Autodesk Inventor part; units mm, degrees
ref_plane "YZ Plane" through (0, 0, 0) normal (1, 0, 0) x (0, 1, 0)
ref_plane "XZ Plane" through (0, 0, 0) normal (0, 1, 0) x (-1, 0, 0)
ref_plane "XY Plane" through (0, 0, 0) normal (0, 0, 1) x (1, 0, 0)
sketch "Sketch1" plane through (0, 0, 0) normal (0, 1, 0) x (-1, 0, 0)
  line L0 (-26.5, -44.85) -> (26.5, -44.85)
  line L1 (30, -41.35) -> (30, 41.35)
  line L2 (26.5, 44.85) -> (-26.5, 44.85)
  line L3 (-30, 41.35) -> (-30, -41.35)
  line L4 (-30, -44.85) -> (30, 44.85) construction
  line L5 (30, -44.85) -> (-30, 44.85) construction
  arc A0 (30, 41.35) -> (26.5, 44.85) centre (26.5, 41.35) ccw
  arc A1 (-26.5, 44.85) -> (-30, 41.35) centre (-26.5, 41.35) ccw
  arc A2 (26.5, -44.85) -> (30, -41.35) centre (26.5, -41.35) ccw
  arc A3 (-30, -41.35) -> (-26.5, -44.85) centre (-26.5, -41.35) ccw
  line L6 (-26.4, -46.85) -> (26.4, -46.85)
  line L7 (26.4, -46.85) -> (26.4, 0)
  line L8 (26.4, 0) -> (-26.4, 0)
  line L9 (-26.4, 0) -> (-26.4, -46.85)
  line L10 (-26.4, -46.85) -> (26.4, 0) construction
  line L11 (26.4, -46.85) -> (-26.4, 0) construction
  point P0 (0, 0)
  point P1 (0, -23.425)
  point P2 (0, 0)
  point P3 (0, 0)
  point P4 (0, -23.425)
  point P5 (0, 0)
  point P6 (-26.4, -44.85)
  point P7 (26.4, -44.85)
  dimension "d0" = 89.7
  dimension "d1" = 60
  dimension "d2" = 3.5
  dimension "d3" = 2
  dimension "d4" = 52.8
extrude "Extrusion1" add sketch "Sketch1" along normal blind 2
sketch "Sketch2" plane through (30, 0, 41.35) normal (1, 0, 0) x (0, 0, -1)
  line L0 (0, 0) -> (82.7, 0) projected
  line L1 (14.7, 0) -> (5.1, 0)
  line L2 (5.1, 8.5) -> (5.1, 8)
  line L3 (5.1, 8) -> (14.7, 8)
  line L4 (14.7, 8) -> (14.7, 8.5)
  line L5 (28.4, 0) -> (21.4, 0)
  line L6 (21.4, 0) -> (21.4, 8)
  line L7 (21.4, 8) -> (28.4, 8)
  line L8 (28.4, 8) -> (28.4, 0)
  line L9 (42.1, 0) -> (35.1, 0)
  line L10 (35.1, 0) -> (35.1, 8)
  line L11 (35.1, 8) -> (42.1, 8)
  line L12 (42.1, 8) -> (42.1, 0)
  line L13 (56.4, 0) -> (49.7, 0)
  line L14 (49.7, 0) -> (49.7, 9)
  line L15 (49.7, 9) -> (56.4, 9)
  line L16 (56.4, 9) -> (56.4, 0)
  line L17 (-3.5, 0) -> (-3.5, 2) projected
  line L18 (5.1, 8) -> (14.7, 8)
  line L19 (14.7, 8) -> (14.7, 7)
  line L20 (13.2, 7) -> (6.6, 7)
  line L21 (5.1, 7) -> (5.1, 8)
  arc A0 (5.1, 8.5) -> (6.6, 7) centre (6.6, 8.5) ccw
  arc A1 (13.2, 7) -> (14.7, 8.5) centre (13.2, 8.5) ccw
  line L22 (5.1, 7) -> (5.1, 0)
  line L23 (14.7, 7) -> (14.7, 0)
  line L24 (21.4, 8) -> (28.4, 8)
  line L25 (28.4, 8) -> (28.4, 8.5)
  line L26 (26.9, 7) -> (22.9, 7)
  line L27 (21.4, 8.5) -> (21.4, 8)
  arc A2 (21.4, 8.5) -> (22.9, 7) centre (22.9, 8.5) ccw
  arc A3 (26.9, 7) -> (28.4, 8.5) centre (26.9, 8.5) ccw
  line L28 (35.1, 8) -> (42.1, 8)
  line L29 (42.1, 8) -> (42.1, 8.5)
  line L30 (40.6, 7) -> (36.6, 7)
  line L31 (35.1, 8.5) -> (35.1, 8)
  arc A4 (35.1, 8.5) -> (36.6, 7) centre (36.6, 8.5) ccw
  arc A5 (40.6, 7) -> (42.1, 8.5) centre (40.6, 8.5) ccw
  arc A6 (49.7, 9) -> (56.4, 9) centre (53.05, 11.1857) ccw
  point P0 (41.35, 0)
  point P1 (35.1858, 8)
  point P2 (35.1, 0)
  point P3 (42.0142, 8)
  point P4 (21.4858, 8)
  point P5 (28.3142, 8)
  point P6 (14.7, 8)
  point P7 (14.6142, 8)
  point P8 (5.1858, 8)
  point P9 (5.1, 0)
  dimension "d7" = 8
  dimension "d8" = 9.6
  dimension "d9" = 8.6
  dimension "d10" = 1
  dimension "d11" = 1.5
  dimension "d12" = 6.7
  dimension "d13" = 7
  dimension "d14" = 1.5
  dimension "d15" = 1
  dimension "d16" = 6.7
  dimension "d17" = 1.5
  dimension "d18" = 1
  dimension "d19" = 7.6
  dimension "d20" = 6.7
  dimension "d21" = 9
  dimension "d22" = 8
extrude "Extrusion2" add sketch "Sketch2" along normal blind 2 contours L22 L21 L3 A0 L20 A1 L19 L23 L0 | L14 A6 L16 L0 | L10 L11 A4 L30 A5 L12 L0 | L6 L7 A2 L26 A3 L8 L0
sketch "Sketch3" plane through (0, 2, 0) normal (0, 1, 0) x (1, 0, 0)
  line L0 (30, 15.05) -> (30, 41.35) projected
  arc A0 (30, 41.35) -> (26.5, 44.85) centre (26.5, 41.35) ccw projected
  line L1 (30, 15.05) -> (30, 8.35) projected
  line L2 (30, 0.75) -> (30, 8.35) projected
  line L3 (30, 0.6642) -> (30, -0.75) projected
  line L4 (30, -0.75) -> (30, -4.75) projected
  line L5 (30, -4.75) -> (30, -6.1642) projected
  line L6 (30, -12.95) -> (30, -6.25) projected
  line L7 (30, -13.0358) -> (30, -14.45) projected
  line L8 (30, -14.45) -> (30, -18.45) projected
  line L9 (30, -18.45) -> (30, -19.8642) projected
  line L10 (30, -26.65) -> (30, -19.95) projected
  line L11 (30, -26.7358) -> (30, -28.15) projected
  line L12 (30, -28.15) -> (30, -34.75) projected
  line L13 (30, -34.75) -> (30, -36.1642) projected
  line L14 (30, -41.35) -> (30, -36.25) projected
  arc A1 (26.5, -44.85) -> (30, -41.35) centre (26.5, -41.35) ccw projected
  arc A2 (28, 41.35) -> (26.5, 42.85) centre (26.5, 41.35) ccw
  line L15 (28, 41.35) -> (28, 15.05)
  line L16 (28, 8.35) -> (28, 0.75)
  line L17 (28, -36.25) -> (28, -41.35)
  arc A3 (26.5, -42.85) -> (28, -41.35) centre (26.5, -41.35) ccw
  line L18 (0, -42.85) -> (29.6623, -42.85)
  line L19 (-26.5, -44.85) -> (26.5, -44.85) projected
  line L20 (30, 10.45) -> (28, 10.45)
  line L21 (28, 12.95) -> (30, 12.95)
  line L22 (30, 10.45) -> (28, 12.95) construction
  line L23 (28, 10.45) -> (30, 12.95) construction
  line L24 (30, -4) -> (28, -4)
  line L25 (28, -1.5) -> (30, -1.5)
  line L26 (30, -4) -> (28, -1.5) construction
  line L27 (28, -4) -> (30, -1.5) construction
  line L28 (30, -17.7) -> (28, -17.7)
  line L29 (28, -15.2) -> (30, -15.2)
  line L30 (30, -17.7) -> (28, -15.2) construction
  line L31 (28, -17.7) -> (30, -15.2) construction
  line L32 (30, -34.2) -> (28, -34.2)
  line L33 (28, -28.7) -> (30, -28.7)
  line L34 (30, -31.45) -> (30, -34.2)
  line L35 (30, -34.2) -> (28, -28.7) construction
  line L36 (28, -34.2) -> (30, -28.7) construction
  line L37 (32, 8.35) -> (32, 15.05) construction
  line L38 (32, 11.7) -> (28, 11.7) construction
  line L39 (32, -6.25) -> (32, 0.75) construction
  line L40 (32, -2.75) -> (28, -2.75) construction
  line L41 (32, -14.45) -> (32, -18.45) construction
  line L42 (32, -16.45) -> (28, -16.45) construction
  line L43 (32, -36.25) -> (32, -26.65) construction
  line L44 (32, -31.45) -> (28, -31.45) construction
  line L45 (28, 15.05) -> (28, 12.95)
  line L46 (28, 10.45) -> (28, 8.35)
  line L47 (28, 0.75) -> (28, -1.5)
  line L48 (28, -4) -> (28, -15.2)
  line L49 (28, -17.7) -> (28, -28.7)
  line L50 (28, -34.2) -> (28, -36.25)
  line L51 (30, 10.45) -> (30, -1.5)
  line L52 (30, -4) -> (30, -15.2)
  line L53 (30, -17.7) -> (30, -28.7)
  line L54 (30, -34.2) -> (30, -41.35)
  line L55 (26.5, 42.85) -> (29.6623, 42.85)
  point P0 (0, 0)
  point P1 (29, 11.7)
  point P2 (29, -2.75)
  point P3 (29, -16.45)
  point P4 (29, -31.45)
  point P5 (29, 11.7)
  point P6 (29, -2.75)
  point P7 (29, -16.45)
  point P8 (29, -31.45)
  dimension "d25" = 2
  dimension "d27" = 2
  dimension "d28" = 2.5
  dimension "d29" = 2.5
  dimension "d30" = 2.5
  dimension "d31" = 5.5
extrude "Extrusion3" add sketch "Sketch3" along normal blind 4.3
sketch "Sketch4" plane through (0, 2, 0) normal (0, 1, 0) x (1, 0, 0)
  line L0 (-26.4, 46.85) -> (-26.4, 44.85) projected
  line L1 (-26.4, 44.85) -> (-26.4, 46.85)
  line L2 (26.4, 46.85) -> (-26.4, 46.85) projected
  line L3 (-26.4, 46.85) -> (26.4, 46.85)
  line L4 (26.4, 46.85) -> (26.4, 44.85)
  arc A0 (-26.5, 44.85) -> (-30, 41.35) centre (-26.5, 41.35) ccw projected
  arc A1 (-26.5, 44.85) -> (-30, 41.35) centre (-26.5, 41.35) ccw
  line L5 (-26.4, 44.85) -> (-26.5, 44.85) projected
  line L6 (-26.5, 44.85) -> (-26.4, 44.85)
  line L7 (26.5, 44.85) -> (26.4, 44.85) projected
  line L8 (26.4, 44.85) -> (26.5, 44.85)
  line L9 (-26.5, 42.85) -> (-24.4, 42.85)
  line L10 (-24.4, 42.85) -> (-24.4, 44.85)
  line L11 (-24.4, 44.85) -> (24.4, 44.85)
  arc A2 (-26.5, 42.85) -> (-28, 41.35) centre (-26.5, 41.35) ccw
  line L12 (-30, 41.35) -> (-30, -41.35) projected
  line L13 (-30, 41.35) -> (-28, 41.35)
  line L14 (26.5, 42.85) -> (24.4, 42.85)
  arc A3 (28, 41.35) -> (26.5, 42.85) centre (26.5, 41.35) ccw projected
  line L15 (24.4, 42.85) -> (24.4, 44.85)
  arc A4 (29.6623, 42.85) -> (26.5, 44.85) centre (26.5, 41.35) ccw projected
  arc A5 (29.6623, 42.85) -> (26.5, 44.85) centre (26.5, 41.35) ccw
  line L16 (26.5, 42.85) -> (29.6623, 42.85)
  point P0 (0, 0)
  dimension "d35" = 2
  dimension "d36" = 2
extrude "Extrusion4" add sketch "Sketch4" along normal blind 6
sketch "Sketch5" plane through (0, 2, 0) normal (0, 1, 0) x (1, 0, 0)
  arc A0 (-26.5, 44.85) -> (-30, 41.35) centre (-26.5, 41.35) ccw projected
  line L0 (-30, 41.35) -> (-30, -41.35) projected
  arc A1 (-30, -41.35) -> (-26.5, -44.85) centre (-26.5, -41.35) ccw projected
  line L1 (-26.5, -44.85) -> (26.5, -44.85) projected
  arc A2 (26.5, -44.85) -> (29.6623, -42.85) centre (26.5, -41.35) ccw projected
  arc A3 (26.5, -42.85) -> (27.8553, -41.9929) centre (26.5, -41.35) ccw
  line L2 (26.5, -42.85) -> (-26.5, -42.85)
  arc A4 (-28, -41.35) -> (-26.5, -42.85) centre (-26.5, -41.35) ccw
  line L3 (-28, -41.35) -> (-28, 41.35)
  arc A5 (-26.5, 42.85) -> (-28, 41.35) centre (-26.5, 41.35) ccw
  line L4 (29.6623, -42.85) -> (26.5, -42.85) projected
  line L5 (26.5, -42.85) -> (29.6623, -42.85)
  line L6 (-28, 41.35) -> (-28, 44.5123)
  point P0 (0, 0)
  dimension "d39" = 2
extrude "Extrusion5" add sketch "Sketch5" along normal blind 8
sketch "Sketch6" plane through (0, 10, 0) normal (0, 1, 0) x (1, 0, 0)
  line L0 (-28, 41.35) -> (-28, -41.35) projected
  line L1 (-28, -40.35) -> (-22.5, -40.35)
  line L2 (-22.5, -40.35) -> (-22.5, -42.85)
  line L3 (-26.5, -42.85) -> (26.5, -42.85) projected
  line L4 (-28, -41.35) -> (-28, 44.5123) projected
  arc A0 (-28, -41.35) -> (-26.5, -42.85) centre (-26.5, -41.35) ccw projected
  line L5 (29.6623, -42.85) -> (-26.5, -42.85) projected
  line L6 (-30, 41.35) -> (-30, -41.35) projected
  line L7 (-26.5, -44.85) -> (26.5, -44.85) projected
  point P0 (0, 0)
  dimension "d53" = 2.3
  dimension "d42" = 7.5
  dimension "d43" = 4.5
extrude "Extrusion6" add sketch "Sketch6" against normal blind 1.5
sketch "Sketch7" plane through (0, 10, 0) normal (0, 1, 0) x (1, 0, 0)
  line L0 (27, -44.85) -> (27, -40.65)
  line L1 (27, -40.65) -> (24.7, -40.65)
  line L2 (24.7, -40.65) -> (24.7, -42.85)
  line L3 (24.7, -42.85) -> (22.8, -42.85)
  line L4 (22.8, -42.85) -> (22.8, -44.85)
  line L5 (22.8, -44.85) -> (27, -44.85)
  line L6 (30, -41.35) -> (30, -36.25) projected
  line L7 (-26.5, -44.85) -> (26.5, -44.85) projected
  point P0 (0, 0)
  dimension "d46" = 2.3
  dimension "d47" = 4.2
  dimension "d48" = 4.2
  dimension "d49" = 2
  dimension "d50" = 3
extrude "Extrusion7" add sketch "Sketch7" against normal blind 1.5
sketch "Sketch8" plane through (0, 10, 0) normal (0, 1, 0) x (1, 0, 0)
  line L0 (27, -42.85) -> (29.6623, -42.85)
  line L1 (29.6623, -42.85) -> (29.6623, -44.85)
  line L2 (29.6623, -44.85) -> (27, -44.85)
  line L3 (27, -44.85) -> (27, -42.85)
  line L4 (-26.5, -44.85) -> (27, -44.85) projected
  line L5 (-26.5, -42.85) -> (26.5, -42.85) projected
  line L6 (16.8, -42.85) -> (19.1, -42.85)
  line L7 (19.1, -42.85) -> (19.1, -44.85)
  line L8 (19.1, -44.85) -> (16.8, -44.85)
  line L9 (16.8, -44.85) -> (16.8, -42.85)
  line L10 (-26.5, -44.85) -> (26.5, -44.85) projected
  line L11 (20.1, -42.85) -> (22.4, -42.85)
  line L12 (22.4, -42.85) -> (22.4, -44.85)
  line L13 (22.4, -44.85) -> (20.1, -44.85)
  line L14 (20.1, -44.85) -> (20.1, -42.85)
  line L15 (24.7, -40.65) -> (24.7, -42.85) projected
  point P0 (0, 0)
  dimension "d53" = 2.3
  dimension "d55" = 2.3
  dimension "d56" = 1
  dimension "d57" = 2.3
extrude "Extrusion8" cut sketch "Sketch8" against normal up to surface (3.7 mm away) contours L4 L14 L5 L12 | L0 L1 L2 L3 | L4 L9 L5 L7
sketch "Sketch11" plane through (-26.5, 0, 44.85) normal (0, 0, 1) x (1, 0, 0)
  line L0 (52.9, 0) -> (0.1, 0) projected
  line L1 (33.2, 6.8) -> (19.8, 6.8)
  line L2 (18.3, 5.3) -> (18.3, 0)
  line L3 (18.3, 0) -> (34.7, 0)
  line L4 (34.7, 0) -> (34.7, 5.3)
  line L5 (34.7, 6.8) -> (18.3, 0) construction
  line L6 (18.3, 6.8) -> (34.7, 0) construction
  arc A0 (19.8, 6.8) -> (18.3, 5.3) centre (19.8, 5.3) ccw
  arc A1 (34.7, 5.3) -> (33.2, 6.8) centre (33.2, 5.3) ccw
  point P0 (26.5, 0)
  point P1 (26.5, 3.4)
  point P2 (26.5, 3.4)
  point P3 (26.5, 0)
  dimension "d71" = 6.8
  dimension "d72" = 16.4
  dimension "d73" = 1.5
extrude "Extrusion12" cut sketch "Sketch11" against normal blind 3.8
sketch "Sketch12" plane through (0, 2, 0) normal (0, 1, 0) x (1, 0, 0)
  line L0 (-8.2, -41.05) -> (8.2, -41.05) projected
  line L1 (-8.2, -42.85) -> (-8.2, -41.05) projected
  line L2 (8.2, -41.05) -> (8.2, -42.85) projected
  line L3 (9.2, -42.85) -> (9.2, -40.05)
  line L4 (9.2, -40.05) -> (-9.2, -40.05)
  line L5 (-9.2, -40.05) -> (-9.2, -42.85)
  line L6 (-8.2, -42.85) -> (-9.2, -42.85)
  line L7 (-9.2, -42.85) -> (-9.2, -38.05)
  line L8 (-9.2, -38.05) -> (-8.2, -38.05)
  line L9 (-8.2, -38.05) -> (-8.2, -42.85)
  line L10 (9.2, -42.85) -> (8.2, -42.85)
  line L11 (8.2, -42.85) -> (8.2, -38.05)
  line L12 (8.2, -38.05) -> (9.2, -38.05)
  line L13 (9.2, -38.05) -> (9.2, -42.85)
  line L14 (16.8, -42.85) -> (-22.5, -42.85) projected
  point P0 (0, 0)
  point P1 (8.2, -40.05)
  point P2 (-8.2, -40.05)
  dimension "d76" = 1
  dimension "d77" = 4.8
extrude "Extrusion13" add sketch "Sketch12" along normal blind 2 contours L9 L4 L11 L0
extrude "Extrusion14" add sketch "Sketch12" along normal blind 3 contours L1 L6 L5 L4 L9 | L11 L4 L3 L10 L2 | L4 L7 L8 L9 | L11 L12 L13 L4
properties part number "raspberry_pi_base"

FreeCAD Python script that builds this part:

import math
import FreeCAD as App
import Part
import Sketcher
Q = App.Units.Quantity


def add_polygon(sketch, points):
    """Adds a closed chain of lines whose ends are joined by coincident constraints."""
    first, n = sketch.GeometryCount, len(points)
    for a, b in zip(points, points[1:] + points[:1]):
        sketch.addGeometry(Part.LineSegment(App.Vector(*a, 0), App.Vector(*b, 0)), False)
    for i in range(n):
        sketch.addConstraint(Sketcher.Constraint("Coincident", first + i, 2, first + (i + 1) % n, 1))

doc = App.newDocument("Part")
body = doc.addObject("PartDesign::Body", "Body")

sketch1 = body.newObject("Sketcher::SketchObject", "Sketch")
sketch1.AttachmentSupport = (doc.getObject("XZ_Plane"), [""])
sketch1.MapMode = "FlatFace"
sketch1.addGeometry([
    Part.ArcOfCircle(Part.Circle(App.Vector(26.5, -41.35, 0), App.Vector(0, 0, 1), 3.5), math.radians(-90), math.radians(0)),
    Part.LineSegment(App.Vector(26.5, -44.85, 0), App.Vector(26.4, -44.85, 0)),
    Part.LineSegment(App.Vector(26.4, -44.85, 0), App.Vector(26.4, -46.85, 0)),
    Part.LineSegment(App.Vector(26.4, -46.85, 0), App.Vector(-26.4, -46.85, 0)),
    Part.LineSegment(App.Vector(-26.4, -46.85, 0), App.Vector(-26.4, -44.85, 0)),
    Part.LineSegment(App.Vector(-26.4, -44.85, 0), App.Vector(-26.5, -44.85, 0)),
    Part.ArcOfCircle(Part.Circle(App.Vector(-26.5, -41.35, 0), App.Vector(0, 0, 1), 3.5), math.radians(180), math.radians(270)),
    Part.LineSegment(App.Vector(-30, -41.35, 0), App.Vector(-30, 41.35, 0)),
    Part.ArcOfCircle(Part.Circle(App.Vector(-26.5, 41.35, 0), App.Vector(0, 0, 1), 3.5), math.radians(90), math.radians(180)),
    Part.LineSegment(App.Vector(-26.5, 44.85, 0), App.Vector(26.5, 44.85, 0)),
    Part.ArcOfCircle(Part.Circle(App.Vector(26.5, 41.35, 0), App.Vector(0, 0, 1), 3.5), math.radians(0), math.radians(90)),
    Part.LineSegment(App.Vector(30, 41.35, 0), App.Vector(30, -41.35, 0)),
], False)
sketch1.addConstraint([
    Sketcher.Constraint("Tangent", 0, 1, 1, 1),
    Sketcher.Constraint("Coincident", 1, 2, 2, 1),
    Sketcher.Constraint("Coincident", 2, 2, 3, 1),
    Sketcher.Constraint("Coincident", 3, 2, 4, 1),
    Sketcher.Constraint("Coincident", 4, 2, 5, 1),
    Sketcher.Constraint("Tangent", 5, 2, 6, 2),
    Sketcher.Constraint("Tangent", 6, 1, 7, 1),
    Sketcher.Constraint("Tangent", 7, 2, 8, 2),
    Sketcher.Constraint("Tangent", 8, 1, 9, 1),
    Sketcher.Constraint("Tangent", 9, 2, 10, 2),
    Sketcher.Constraint("Tangent", 10, 1, 11, 1),
    Sketcher.Constraint("Tangent", 11, 2, 0, 2),
    Sketcher.Constraint("Horizontal", 1),
    Sketcher.Constraint("Vertical", 2),
    Sketcher.Constraint("Horizontal", 3),
    Sketcher.Constraint("Vertical", 4),
    Sketcher.Constraint("Horizontal", 5),
    Sketcher.Constraint("Vertical", 7),
    Sketcher.Constraint("Horizontal", 9),
    Sketcher.Constraint("Vertical", 11),
    Sketcher.Constraint("Equal", 0, 6),
    Sketcher.Constraint("Equal", 6, 8),
    Sketcher.Constraint("Equal", 8, 10),
    Sketcher.Constraint("Symmetric", 0, 3, 8, 3, -1, 1),
    Sketcher.Constraint("Symmetric", 1, 2, 4, 2, -2),
    Sketcher.Constraint("Radius", 0, Q("3.5 mm")),
    Sketcher.Constraint("DistanceY", 2, 2, 2, 1, Q("2 mm")),
    Sketcher.Constraint("DistanceX", 3, 2, 3, 1, Q("52.8 mm")),
    Sketcher.Constraint("DistanceX", 7, 2, 10, 1, Q("60 mm")),
    Sketcher.Constraint("DistanceY", 7, 1, 7, 2, Q("82.7 mm")),
])
pad1 = body.newObject("PartDesign::Pad", "Pad")
pad1.Profile = sketch1
pad1.Length = 2
pad1.Reversed = True

sketch2 = body.newObject("Sketcher::SketchObject", "Sketch001")
sketch2.AttachmentSupport = (doc.getObject("YZ_Plane"), [""])
sketch2.MapMode = "FlatFace"
sketch2.AttachmentOffset = App.Placement(App.Vector(0, 0, 30), App.Rotation())
sketch2.addGeometry([
    Part.LineSegment(App.Vector(8, 36.25, 0), App.Vector(0, 36.25, 0)),
    Part.LineSegment(App.Vector(0, 36.25, 0), App.Vector(0, 26.65, 0)),
    Part.LineSegment(App.Vector(0, 26.65, 0), App.Vector(8, 26.65, 0)),
    Part.LineSegment(App.Vector(8, 26.65, 0), App.Vector(8, 26.735786, 0)),
    Part.ArcOfCircle(Part.Circle(App.Vector(8.5, 28.15, 0), App.Vector(0, 0, 1), 1.5), math.radians(180), math.radians(250.528779)),
    Part.LineSegment(App.Vector(7, 28.15, 0), App.Vector(7, 34.75, 0)),
    Part.ArcOfCircle(Part.Circle(App.Vector(8.5, 34.75, 0), App.Vector(0, 0, 1), 1.5), math.radians(109.471221), math.radians(180)),
    Part.LineSegment(App.Vector(8, 36.164214, 0), App.Vector(8, 36.25, 0)),
    Part.LineSegment(App.Vector(9, -8.35, 0), App.Vector(0, -8.35, 0)),
    Part.LineSegment(App.Vector(0, -8.35, 0), App.Vector(0, -15.05, 0)),
    Part.LineSegment(App.Vector(0, -15.05, 0), App.Vector(9, -15.05, 0)),
    Part.ArcOfCircle(Part.Circle(App.Vector(11.1857, -11.7, 0), App.Vector(0, 0, 1), 3.999973), math.radians(123.122349), math.radians(236.877651)),
    Part.LineSegment(App.Vector(8, 6.25, 0), App.Vector(0, 6.25, 0)),
    Part.LineSegment(App.Vector(0, 6.25, 0), App.Vector(0, -0.75, 0)),
    Part.LineSegment(App.Vector(0, -0.75, 0), App.Vector(8, -0.75, 0)),
    Part.LineSegment(App.Vector(8, -0.75, 0), App.Vector(8, -0.664214, 0)),
    Part.ArcOfCircle(Part.Circle(App.Vector(8.5, 0.75, 0), App.Vector(0, 0, 1), 1.5), math.radians(180), math.radians(250.528779)),
    Part.LineSegment(App.Vector(7, 0.75, 0), App.Vector(7, 4.75, 0)),
    Part.ArcOfCircle(Part.Circle(App.Vector(8.5, 4.75, 0), App.Vector(0, 0, 1), 1.5), math.radians(109.471221), math.radians(180)),
    Part.LineSegment(App.Vector(8, 6.164214, 0), App.Vector(8, 6.25, 0)),
    Part.LineSegment(App.Vector(8, 19.95, 0), App.Vector(0, 19.95, 0)),
    Part.LineSegment(App.Vector(0, 19.95, 0), App.Vector(0, 12.95, 0)),
    Part.LineSegment(App.Vector(0, 12.95, 0), App.Vector(8, 12.95, 0)),
    Part.LineSegment(App.Vector(8, 12.95, 0), App.Vector(8, 13.035786, 0)),
    Part.ArcOfCircle(Part.Circle(App.Vector(8.5, 14.45, 0), App.Vector(0, 0, 1), 1.5), math.radians(180), math.radians(250.528779)),
    Part.LineSegment(App.Vector(7, 14.45, 0), App.Vector(7, 18.45, 0)),
    Part.ArcOfCircle(Part.Circle(App.Vector(8.5, 18.45, 0), App.Vector(0, 0, 1), 1.5), math.radians(109.471221), math.radians(180)),
    Part.LineSegment(App.Vector(8, 19.864214, 0), App.Vector(8, 19.95, 0)),
], False)
sketch2.addConstraint([
    Sketcher.Constraint("Coincident", 0, 2, 1, 1),
    Sketcher.Constraint("Coincident", 1, 2, 2, 1),
    Sketcher.Constraint("Coincident", 2, 2, 3, 1),
    Sketcher.Constraint("Coincident", 3, 2, 4, 2),
    Sketcher.Constraint("Tangent", 4, 1, 5, 1),
    Sketcher.Constraint("Tangent", 5, 2, 6, 2),
    Sketcher.Constraint("Coincident", 6, 1, 7, 1),
    Sketcher.Constraint("Coincident", 7, 2, 0, 1),
    Sketcher.Constraint("Coincident", 8, 2, 9, 1),
    Sketcher.Constraint("Coincident", 9, 2, 10, 1),
    Sketcher.Constraint("Coincident", 10, 2, 11, 2),
    Sketcher.Constraint("Coincident", 11, 1, 8, 1),
    Sketcher.Constraint("Coincident", 12, 2, 13, 1),
    Sketcher.Constraint("Coincident", 13, 2, 14, 1),
    Sketcher.Constraint("Coincident", 14, 2, 15, 1),
    Sketcher.Constraint("Coincident", 15, 2, 16, 2),
    Sketcher.Constraint("Tangent", 16, 1, 17, 1),
    Sketcher.Constraint("Tangent", 17, 2, 18, 2),
    Sketcher.Constraint("Coincident", 18, 1, 19, 1),
    Sketcher.Constraint("Coincident", 19, 2, 12, 1),
    Sketcher.Constraint("Coincident", 20, 2, 21, 1),
    Sketcher.Constraint("Coincident", 21, 2, 22, 1),
    Sketcher.Constraint("Coincident", 22, 2, 23, 1),
    Sketcher.Constraint("Coincident", 23, 2, 24, 2),
    Sketcher.Constraint("Tangent", 24, 1, 25, 1),
    Sketcher.Constraint("Tangent", 25, 2, 26, 2),
    Sketcher.Constraint("Coincident", 26, 1, 27, 1),
    Sketcher.Constraint("Coincident", 27, 2, 20, 1),
    Sketcher.Constraint("Horizontal", 0),
    Sketcher.Constraint("Vertical", 1),
    Sketcher.Constraint("Horizontal", 2),
    Sketcher.Constraint("Vertical", 3),
    Sketcher.Constraint("Vertical", 5),
    Sketcher.Constraint("Vertical", 7),
    Sketcher.Constraint("Horizontal", 8),
    Sketcher.Constraint("Vertical", 9),
    Sketcher.Constraint("Horizontal", 10),
    Sketcher.Constraint("Horizontal", 12),
    Sketcher.Constraint("Vertical", 13),
    Sketcher.Constraint("Horizontal", 14),
    Sketcher.Constraint("Vertical", 15),
    Sketcher.Constraint("Vertical", 17),
    Sketcher.Constraint("Vertical", 19),
    Sketcher.Constraint("Horizontal", 20),
    Sketcher.Constraint("Vertical", 21),
    Sketcher.Constraint("Horizontal", 22),
    Sketcher.Constraint("Vertical", 23),
    Sketcher.Constraint("Vertical", 25),
    Sketcher.Constraint("Vertical", 27),
    Sketcher.Constraint("Equal", 4, 6),
    Sketcher.Constraint("Equal", 6, 16),
    Sketcher.Constraint("Equal", 16, 18),
    Sketcher.Constraint("Equal", 18, 24),
    Sketcher.Constraint("Equal", 24, 26),
    Sketcher.Constraint("PointOnObject", 0, 2, -2),
    Sketcher.Constraint("PointOnObject", 8, 2, -2),
    Sketcher.Constraint("PointOnObject", 12, 2, -2),
    Sketcher.Constraint("PointOnObject", 20, 2, -2),
    Sketcher.Constraint("Vertical", 6, 3, 16, 3),
    Sketcher.Constraint("Vertical", 18, 3, 24, 3),
    Sketcher.Constraint("Vertical", 3, 2, 6, 1),
    Sketcher.Constraint("Vertical", 10, 2, 11, 1),
    Sketcher.Constraint("Vertical", 7, 2, 14, 2),
    Sketcher.Constraint("Vertical", 15, 2, 18, 1),
    Sketcher.Constraint("Vertical", 19, 2, 22, 2),
    Sketcher.Constraint("Vertical", 23, 2, 26, 1),
    Sketcher.Constraint("Equal", 3, 7),
    Sketcher.Constraint("Equal", 7, 15),
    Sketcher.Constraint("Equal", 15, 19),
    Sketcher.Constraint("Equal", 13, 21),
    Sketcher.Constraint("Equal", 19, 23),
    Sketcher.Constraint("Equal", 17, 25),
    Sketcher.Constraint("Radius", 11, Q("4 mm")),
    Sketcher.Constraint("Radius", 4, Q("1.5 mm")),
    Sketcher.Constraint("DistanceX", 0, 2, 0, 1, Q("8 mm")),
    Sketcher.Constraint("DistanceX", 8, 2, 8, 1, Q("9 mm")),
    Sketcher.Constraint("DistanceY", 13, 2, 13, 1, Q("7 mm")),
    Sketcher.Constraint("DistanceY", 1, 2, 1, 1, Q("9.6 mm")),
    Sketcher.Constraint("DistanceY", 9, 2, 9, 1, Q("6.7 mm")),
    Sketcher.Constraint("DistanceX", -1, 1, 4, 1, Q("7 mm")),
    Sketcher.Constraint("DistanceY", 6, 3, 0, 2, Q("1.5 mm")),
    Sketcher.Constraint("DistanceY", 8, 2, 13, 2, Q("7.6 mm")),
    Sketcher.Constraint("DistanceY", 20, 2, 1, 2, Q("6.7 mm")),
    Sketcher.Constraint("DistanceY", 12, 2, 21, 2, Q("6.7 mm")),
    Sketcher.Constraint("DistanceY", 11, 3, -1, 1, Q("11.7 mm")),
])
pad2 = body.newObject("PartDesign::Pad", "Pad001")
pad2.Profile = sketch2
pad2.Length = 2

sketch3 = body.newObject("Sketcher::SketchObject", "Sketch002")
sketch3.AttachmentSupport = (doc.getObject("XZ_Plane"), [""])
sketch3.MapMode = "FlatFace"
sketch3.AttachmentOffset = App.Placement(App.Vector(0, 0, -2), App.Rotation())
sketch3.addGeometry(Part.LineSegment(App.Vector(30, -12.95, 0), App.Vector(30, -41.35, 0)), False)
sketch3.addGeometry(Part.ArcOfCircle(Part.Circle(App.Vector(26.5, -41.35, 0), App.Vector(0, 0, 1), 3.5), math.radians(-25.376777), math.radians(0)), False)
sketch3.addGeometry(Part.LineSegment(App.Vector(29.6623, -42.85, 0), App.Vector(26.5, -42.85, 0)), False)
sketch3.addGeometry(Part.ArcOfCircle(Part.Circle(App.Vector(26.5, -41.35, 0), App.Vector(0, 0, 1), 1.5), math.radians(-90), math.radians(0)), False)
sketch3.addGeometry(Part.LineSegment(App.Vector(28, -41.35, 0), App.Vector(28, -12.95, 0)), False)
sketch3.addGeometry(Part.LineSegment(App.Vector(28, -12.95, 0), App.Vector(30, -12.95, 0)), False)
sketch3.addGeometry(Part.LineSegment(App.Vector(30, 41.35, 0), App.Vector(30, 34.2, 0)), False)
sketch3.addGeometry(Part.LineSegment(App.Vector(30, 34.2, 0), App.Vector(28, 34.2, 0)), False)
sketch3.addGeometry(Part.LineSegment(App.Vector(28, 34.2, 0), App.Vector(28, 41.35, 0)), False)
sketch3.addGeometry(Part.ArcOfCircle(Part.Circle(App.Vector(26.5, 41.35, 0), App.Vector(0, 0, 1), 1.5), math.radians(0), math.radians(90)), False)
sketch3.addGeometry(Part.LineSegment(App.Vector(26.5, 42.85, 0), App.Vector(29.6623, 42.85, 0)), False)
sketch3.addGeometry(Part.ArcOfCircle(Part.Circle(App.Vector(26.5, 41.35, 0), App.Vector(0, 0, 1), 3.5), math.radians(0), math.radians(25.376777)), False)
add_polygon(sketch3, [(30, 28.7), (30, 17.7), (28, 17.7), (28, 28.7)])
add_polygon(sketch3, [(30, 15.2), (30, 4), (28, 4), (28, 15.2)])
add_polygon(sketch3, [(30, 1.5), (30, -10.45), (28, -10.45), (28, 1.5)])
sketch3.addConstraint([
    Sketcher.Constraint("Tangent", 0, 2, 1, 2),
    Sketcher.Constraint("Coincident", 1, 1, 2, 1),
    Sketcher.Constraint("Tangent", 2, 2, 3, 1),
    Sketcher.Constraint("Tangent", 3, 2, 4, 1),
    Sketcher.Constraint("Coincident", 4, 2, 5, 1),
    Sketcher.Constraint("Coincident", 5, 2, 0, 1),
    Sketcher.Constraint("Coincident", 6, 2, 7, 1),
    Sketcher.Constraint("Coincident", 7, 2, 8, 1),
    Sketcher.Constraint("Tangent", 8, 2, 9, 1),
    Sketcher.Constraint("Tangent", 9, 2, 10, 1),
    Sketcher.Constraint("Coincident", 10, 2, 11, 2),
    Sketcher.Constraint("Tangent", 11, 1, 6, 1),
    Sketcher.Constraint("Vertical", 0),
    Sketcher.Constraint("Horizontal", 2),
    Sketcher.Constraint("Vertical", 4),
    Sketcher.Constraint("Horizontal", 5),
    Sketcher.Constraint("Vertical", 6),
    Sketcher.Constraint("Horizontal", 7),
    Sketcher.Constraint("Vertical", 8),
    Sketcher.Constraint("Horizontal", 10),
    Sketcher.Constraint("Vertical", 12),
    Sketcher.Constraint("Horizontal", 13),
    Sketcher.Constraint("Vertical", 14),
    Sketcher.Constraint("Horizontal", 15),
    Sketcher.Constraint("Vertical", 16),
    Sketcher.Constraint("Horizontal", 17),
    Sketcher.Constraint("Vertical", 18),
    Sketcher.Constraint("Horizontal", 19),
    Sketcher.Constraint("Vertical", 20),
    Sketcher.Constraint("Horizontal", 21),
    Sketcher.Constraint("Vertical", 22),
    Sketcher.Constraint("Horizontal", 23),
    Sketcher.Constraint("Coincident", 3, 3, 1, 3),
    Sketcher.Constraint("Coincident", 11, 3, 9, 3),
    Sketcher.Constraint("Equal", 3, 9),
    Sketcher.Constraint("Equal", 1, 11),
    Sketcher.Constraint("Symmetric", 1, 3, 9, 3, -1),
    Sketcher.Constraint("Vertical", 11, 1, 12, 2),
    Sketcher.Constraint("Vertical", 8, 2, 13, 2),
    Sketcher.Constraint("Vertical", 15, 2, 16, 2),
    Sketcher.Constraint("Vertical", 14, 2, 17, 2),
    Sketcher.Constraint("Vertical", 19, 2, 20, 2),
    Sketcher.Constraint("Vertical", 18, 2, 21, 2),
    Sketcher.Constraint("DistanceX", 5, 1, 5, 2, Q("2 mm")),
    Sketcher.Constraint("Radius", 1, Q("3.5 mm")),
    Sketcher.Constraint("DistanceY", 14, 2, 7, 2, Q("5.5 mm")),
    Sketcher.Constraint("DistanceY", 18, 2, 13, 2, Q("2.5 mm")),
    Sketcher.Constraint("DistanceY", 5, 2, 20, 2, Q("2.5 mm")),
    Sketcher.Constraint("DistanceY", 22, 2, 17, 2, Q("2.5 mm")),
    Sketcher.Constraint("DistanceY", 12, 2, 12, 1, Q("11 mm")),
    Sketcher.Constraint("DistanceY", 0, 2, 0, 1, Q("28.4 mm")),
    Sketcher.Constraint("DistanceY", 16, 2, 16, 1, Q("11.2 mm")),
    Sketcher.Constraint("DistanceX", -1, 1, 0, 2, Q("30 mm")),
    Sketcher.Constraint("DistanceY", -1, 1, 16, 2, Q("4 mm")),
    Sketcher.Constraint("DistanceY", 6, 2, 6, 1, Q("7.15 mm")),
])
pad3 = body.newObject("PartDesign::Pad", "Pad002")
pad3.Profile = sketch3
pad3.Length = 4.3
pad3.Reversed = True

sketch4 = body.newObject("Sketcher::SketchObject", "Sketch003")
sketch4.AttachmentSupport = (doc.getObject("XZ_Plane"), [""])
sketch4.MapMode = "FlatFace"
sketch4.AttachmentOffset = App.Placement(App.Vector(0, 0, -2), App.Rotation())
sketch4.addGeometry([
    Part.LineSegment(App.Vector(26.4, -46.85, 0), App.Vector(-26.4, -46.85, 0)),
    Part.LineSegment(App.Vector(-26.4, -46.85, 0), App.Vector(-26.4, -44.85, 0)),
    Part.LineSegment(App.Vector(-26.4, -44.85, 0), App.Vector(-26.5, -44.85, 0)),
    Part.ArcOfCircle(Part.Circle(App.Vector(-26.5, -41.35, 0), App.Vector(0, 0, 1), 3.5), math.radians(180), math.radians(270)),
    Part.LineSegment(App.Vector(-30, -41.35, 0), App.Vector(-28, -41.35, 0)),
    Part.ArcOfCircle(Part.Circle(App.Vector(-26.5, -41.35, 0), App.Vector(0, 0, 1), 1.5), math.radians(180), math.radians(270)),
    Part.LineSegment(App.Vector(-26.5, -42.85, 0), App.Vector(-24.4, -42.85, 0)),
    Part.LineSegment(App.Vector(-24.4, -42.85, 0), App.Vector(-24.4, -44.85, 0)),
    Part.LineSegment(App.Vector(-24.4, -44.85, 0), App.Vector(24.4, -44.85, 0)),
    Part.LineSegment(App.Vector(24.4, -44.85, 0), App.Vector(24.4, -42.85, 0)),
    Part.LineSegment(App.Vector(24.4, -42.85, 0), App.Vector(29.6623, -42.85, 0)),
    Part.ArcOfCircle(Part.Circle(App.Vector(26.5, -41.35, 0), App.Vector(0, 0, 1), 3.50002), math.radians(-90), math.radians(-25.376777)),
    Part.LineSegment(App.Vector(26.5, -44.85, 0), App.Vector(26.4, -44.85, 0)),
    Part.LineSegment(App.Vector(26.4, -44.85, 0), App.Vector(26.4, -46.85, 0)),
], False)
sketch4.addConstraint([
    Sketcher.Constraint("Coincident", 0, 2, 1, 1),
    Sketcher.Constraint("Coincident", 1, 2, 2, 1),
    Sketcher.Constraint("Tangent", 2, 2, 3, 2),
    Sketcher.Constraint("Coincident", 3, 1, 4, 1),
    Sketcher.Constraint("Coincident", 4, 2, 5, 1),
    Sketcher.Constraint("Tangent", 5, 2, 6, 1),
    Sketcher.Constraint("Coincident", 6, 2, 7, 1),
    Sketcher.Constraint("Coincident", 7, 2, 8, 1),
    Sketcher.Constraint("Coincident", 8, 2, 9, 1),
    Sketcher.Constraint("Coincident", 9, 2, 10, 1),
    Sketcher.Constraint("Coincident", 10, 2, 11, 2),
    Sketcher.Constraint("Tangent", 11, 1, 12, 1),
    Sketcher.Constraint("Coincident", 12, 2, 13, 1),
    Sketcher.Constraint("Coincident", 13, 2, 0, 1),
    Sketcher.Constraint("Horizontal", 0),
    Sketcher.Constraint("Vertical", 1),
    Sketcher.Constraint("Horizontal", 2),
    Sketcher.Constraint("Horizontal", 4),
    Sketcher.Constraint("Horizontal", 6),
    Sketcher.Constraint("Vertical", 7),
    Sketcher.Constraint("Horizontal", 8),
    Sketcher.Constraint("Vertical", 9),
    Sketcher.Constraint("Horizontal", 10),
    Sketcher.Constraint("Horizontal", 12),
    Sketcher.Constraint("Vertical", 13),
    Sketcher.Constraint("Coincident", 5, 3, 3, 3),
    Sketcher.Constraint("Equal", 3, 11),
    Sketcher.Constraint("Symmetric", 3, 3, 11, 3, -2),
    Sketcher.Constraint("Symmetric", 6, 2, 9, 2, -2),
    Sketcher.Constraint("Horizontal", 11, 3, 3, 1),
    Sketcher.Constraint("Horizontal", 2, 2, 7, 2),
    Sketcher.Constraint("Equal", 2, 12),
    Sketcher.Constraint("Equal", 4, 1),
    Sketcher.Constraint("DistanceX", 4, 1, 4, 2, Q("2 mm")),
    Sketcher.Constraint("DistanceX", 1, 2, 6, 2, Q("2 mm")),
    Sketcher.Constraint("Radius", 3, Q("3.5 mm")),
    Sketcher.Constraint("DistanceX", 0, 2, 0, 1, Q("52.8 mm")),
    Sketcher.Constraint("DistanceX", 2, 2, 2, 1, Q("0.1 mm")),
    Sketcher.Constraint("DistanceY", 3, 3, -1, 1, Q("41.35 mm")),
])
pad4 = body.newObject("PartDesign::Pad", "Pad003")
pad4.Profile = sketch4
pad4.Length = 6
pad4.Reversed = True

sketch5 = body.newObject("Sketcher::SketchObject", "Sketch004")
sketch5.AttachmentSupport = (doc.getObject("XZ_Plane"), [""])
sketch5.MapMode = "FlatFace"
sketch5.AttachmentOffset = App.Placement(App.Vector(0, 0, -2), App.Rotation())
sketch5.addGeometry([
    Part.LineSegment(App.Vector(-28, 41.35, 0), App.Vector(-28, -44.5123, 0)),
    Part.ArcOfCircle(Part.Circle(App.Vector(-26.5, -41.35, 0), App.Vector(0, 0, 1), 3.5), math.radians(180), math.radians(244.623223)),
    Part.LineSegment(App.Vector(-30, -41.35, 0), App.Vector(-30, 41.35, 0)),
    Part.ArcOfCircle(Part.Circle(App.Vector(-26.5, 41.35, 0), App.Vector(0, 0, 1), 3.5), math.radians(90), math.radians(180)),
    Part.LineSegment(App.Vector(-26.5, 44.85, 0), App.Vector(26.5, 44.85, 0)),
    Part.ArcOfCircle(Part.Circle(App.Vector(26.5, 41.35, 0), App.Vector(0, 0, 1), 3.5), math.radians(25.376777), math.radians(90)),
    Part.LineSegment(App.Vector(29.6623, 42.85, 0), App.Vector(-26.5, 42.85, 0)),
    Part.ArcOfCircle(Part.Circle(App.Vector(-26.5, 41.35, 0), App.Vector(0, 0, 1), 1.5), math.radians(90), math.radians(180)),
], False)
sketch5.addConstraint([
    Sketcher.Constraint("Coincident", 0, 2, 1, 2),
    Sketcher.Constraint("Tangent", 1, 1, 2, 1),
    Sketcher.Constraint("Tangent", 2, 2, 3, 2),
    Sketcher.Constraint("Tangent", 3, 1, 4, 1),
    Sketcher.Constraint("Tangent", 4, 2, 5, 2),
    Sketcher.Constraint("Coincident", 5, 1, 6, 1),
    Sketcher.Constraint("Tangent", 6, 2, 7, 1),
    Sketcher.Constraint("Tangent", 7, 2, 0, 1),
    Sketcher.Constraint("Vertical", 0),
    Sketcher.Constraint("Vertical", 2),
    Sketcher.Constraint("Horizontal", 4),
    Sketcher.Constraint("Horizontal", 6),
    Sketcher.Constraint("Coincident", 7, 3, 3, 3),
    Sketcher.Constraint("Equal", 1, 3),
    Sketcher.Constraint("Equal", 3, 5),
    Sketcher.Constraint("Symmetric", 1, 3, 5, 3, -1, 1),
    Sketcher.Constraint("DistanceX", 1, 1, 0, 2, Q("2 mm")),
    Sketcher.Constraint("Radius", 1, Q("3.5 mm")),
    Sketcher.Constraint("DistanceX", 4, 1, 4, 2, Q("53 mm")),
    Sketcher.Constraint("DistanceY", 2, 1, 2, 2, Q("82.7 mm")),
])
pad5 = body.newObject("PartDesign::Pad", "Pad004")
pad5.Profile = sketch5
pad5.Length = 8
pad5.Reversed = True

sketch6 = body.newObject("Sketcher::SketchObject", "Sketch005")
sketch6.AttachmentSupport = (doc.getObject("XZ_Plane"), [""])
sketch6.MapMode = "FlatFace"
sketch6.AttachmentOffset = App.Placement(App.Vector(0, 0, -10), App.Rotation())
sketch6.addGeometry([
    Part.LineSegment(App.Vector(-22.5, 40.35, 0), App.Vector(-28, 40.35, 0)),
    Part.LineSegment(App.Vector(-28, 40.35, 0), App.Vector(-28, 41.35, 0)),
    Part.ArcOfCircle(Part.Circle(App.Vector(-26.5, 41.35, 0), App.Vector(0, 0, 1), 1.5), math.radians(90), math.radians(180)),
    Part.LineSegment(App.Vector(-26.5, 42.85, 0), App.Vector(-22.5, 42.85, 0)),
    Part.LineSegment(App.Vector(-22.5, 42.85, 0), App.Vector(-22.5, 40.35, 0)),
], False)
sketch6.addConstraint([
    Sketcher.Constraint("Coincident", 0, 2, 1, 1),
    Sketcher.Constraint("Tangent", 1, 2, 2, 2),
    Sketcher.Constraint("Tangent", 2, 1, 3, 1),
    Sketcher.Constraint("Coincident", 3, 2, 4, 1),
    Sketcher.Constraint("Coincident", 4, 2, 0, 1),
    Sketcher.Constraint("Horizontal", 0),
    Sketcher.Constraint("Vertical", 1),
    Sketcher.Constraint("Horizontal", 3),
    Sketcher.Constraint("Vertical", 4),
    Sketcher.Constraint("Radius", 2, Q("1.5 mm")),
    Sketcher.Constraint("DistanceX", 3, 1, 3, 2, Q("4 mm")),
    Sketcher.Constraint("DistanceY", 1, 1, 1, 2, Q("1 mm")),
    Sketcher.Constraint("DistanceX", 0, 2, -1, 1, Q("28 mm")),
    Sketcher.Constraint("DistanceY", -1, 1, 2, 3, Q("41.35 mm")),
])
pad6 = body.newObject("PartDesign::Pad", "Pad005")
pad6.Profile = sketch6
pad6.Length = 1.5

sketch7 = body.newObject("Sketcher::SketchObject", "Sketch006")
sketch7.AttachmentSupport = (doc.getObject("XZ_Plane"), [""])
sketch7.MapMode = "FlatFace"
sketch7.AttachmentOffset = App.Placement(App.Vector(0, 0, -10), App.Rotation())
add_polygon(sketch7, [(22.8, 44.85), (27, 44.85), (27, 40.65), (24.7, 40.65), (24.7, 42.85), (22.8, 42.85)])
sketch7.addConstraint([
    Sketcher.Constraint("Horizontal", 0),
    Sketcher.Constraint("Vertical", 1),
    Sketcher.Constraint("Horizontal", 2),
    Sketcher.Constraint("Vertical", 3),
    Sketcher.Constraint("Horizontal", 4),
    Sketcher.Constraint("Vertical", 5),
    Sketcher.Constraint("Equal", 0, 1),
    Sketcher.Constraint("DistanceY", 5, 1, 5, 2, Q("2 mm")),
    Sketcher.Constraint("DistanceX", 0, 1, 0, 2, Q("4.2 mm")),
    Sketcher.Constraint("DistanceX", 2, 2, 2, 1, Q("2.3 mm")),
    Sketcher.Constraint("DistanceX", -1, 1, 0, 2, Q("27 mm")),
    Sketcher.Constraint("DistanceY", -1, 1, 0, 2, Q("44.85 mm")),
])
pad7 = body.newObject("PartDesign::Pad", "Pad006")
pad7.Profile = sketch7
pad7.Length = 1.5

sketch8 = body.newObject("Sketcher::SketchObject", "Sketch007")
sketch8.AttachmentSupport = (doc.getObject("XZ_Plane"), [""])
sketch8.MapMode = "FlatFace"
sketch8.AttachmentOffset = App.Placement(App.Vector(0, 0, -10), App.Rotation())
add_polygon(sketch8, [(20.1, 44.85), (22.4, 44.85), (22.4, 42.85), (20.1, 42.85)])
add_polygon(sketch8, [(29.6623, 42.85), (27, 42.85), (27, 44.85), (29.6623, 44.85)])
add_polygon(sketch8, [(16.8, 44.85), (19.1, 44.85), (19.1, 42.85), (16.8, 42.85)])
sketch8.addConstraint([
    Sketcher.Constraint("Horizontal", 0),
    Sketcher.Constraint("Vertical", 1),
    Sketcher.Constraint("Horizontal", 2),
    Sketcher.Constraint("Vertical", 3),
    Sketcher.Constraint("Horizontal", 4),
    Sketcher.Constraint("Vertical", 5),
    Sketcher.Constraint("Horizontal", 6),
    Sketcher.Constraint("Vertical", 7),
    Sketcher.Constraint("Horizontal", 8),
    Sketcher.Constraint("Vertical", 9),
    Sketcher.Constraint("Horizontal", 10),
    Sketcher.Constraint("Vertical", 11),
    Sketcher.Constraint("Horizontal", 2, 2, 4, 2),
    Sketcher.Constraint("Horizontal", 3, 2, 5, 2),
    Sketcher.Constraint("Horizontal", 6, 2, 8, 2),
    Sketcher.Constraint("Horizontal", 7, 2, 9, 2),
    Sketcher.Constraint("Equal", 2, 8),
    Sketcher.Constraint("DistanceX", 0, 1, 0, 2, Q("2.3 mm")),
    Sketcher.Constraint("DistanceX", 8, 2, 3, 2, Q("1 mm")),
    Sketcher.Constraint("DistanceY", 1, 2, 1, 1, Q("2 mm")),
    Sketcher.Constraint("DistanceX", -1, 1, 4, 2, Q("27 mm")),
    Sketcher.Constraint("DistanceX", -1, 1, 0, 2, Q("22.4 mm")),
    Sketcher.Constraint("DistanceY", -1, 1, 0, 2, Q("44.85 mm")),
    Sketcher.Constraint("DistanceX", 4, 2, 4, 1, Q("2.6623 mm")),
])
pocket1 = body.newObject("PartDesign::Pocket", "Pocket")
pocket1.Profile = sketch8
pocket1.Length = 3.7
pocket1.Reversed = True

sketch9 = body.newObject("Sketcher::SketchObject", "Sketch008")
sketch9.AttachmentSupport = (doc.getObject("XY_Plane"), [""])
sketch9.MapMode = "FlatFace"
sketch9.AttachmentOffset = App.Placement(App.Vector(0, 0, 44.85), App.Rotation())
sketch9.addGeometry([
    Part.LineSegment(App.Vector(-8.2, 0, 0), App.Vector(8.2, 0, 0)),
    Part.LineSegment(App.Vector(8.2, 0, 0), App.Vector(8.2, 5.3, 0)),
    Part.ArcOfCircle(Part.Circle(App.Vector(6.7, 5.3, 0), App.Vector(0, 0, 1), 1.5), math.radians(0), math.radians(90)),
    Part.LineSegment(App.Vector(6.7, 6.8, 0), App.Vector(-6.7, 6.8, 0)),
    Part.ArcOfCircle(Part.Circle(App.Vector(-6.7, 5.3, 0), App.Vector(0, 0, 1), 1.5), math.radians(90), math.radians(180)),
    Part.LineSegment(App.Vector(-8.2, 5.3, 0), App.Vector(-8.2, 0, 0)),
], False)
sketch9.addConstraint([
    Sketcher.Constraint("Coincident", 0, 2, 1, 1),
    Sketcher.Constraint("Tangent", 1, 2, 2, 1),
    Sketcher.Constraint("Tangent", 2, 2, 3, 1),
    Sketcher.Constraint("Tangent", 3, 2, 4, 1),
    Sketcher.Constraint("Tangent", 4, 2, 5, 1),
    Sketcher.Constraint("Coincident", 5, 2, 0, 1),
    Sketcher.Constraint("Horizontal", 0),
    Sketcher.Constraint("Vertical", 1),
    Sketcher.Constraint("Horizontal", 3),
    Sketcher.Constraint("Vertical", 5),
    Sketcher.Constraint("Equal", 2, 4),
    Sketcher.Constraint("Symmetric", 0, 2, 5, 2, -1, 1),
    Sketcher.Constraint("Radius", 2, Q("1.5 mm")),
    Sketcher.Constraint("DistanceX", 0, 1, 0, 2, Q("16.4 mm")),
    Sketcher.Constraint("DistanceY", -1, 1, 2, 2, Q("6.8 mm")),
])
pocket2 = body.newObject("PartDesign::Pocket", "Pocket001")
pocket2.Profile = sketch9
pocket2.Length = 3.8

sketch10 = body.newObject("Sketcher::SketchObject", "Sketch009")
sketch10.AttachmentSupport = (doc.getObject("XZ_Plane"), [""])
sketch10.MapMode = "FlatFace"
sketch10.AttachmentOffset = App.Placement(App.Vector(0, 0, -2), App.Rotation())
add_polygon(sketch10, [(-8.2, 40.05), (-8.2, 41.05), (8.2, 41.05), (8.2, 40.05)])
sketch10.addConstraint([
    Sketcher.Constraint("Vertical", 0),
    Sketcher.Constraint("Horizontal", 1),
    Sketcher.Constraint("Vertical", 2),
    Sketcher.Constraint("Horizontal", 3),
    Sketcher.Constraint("DistanceY", 0, 1, 0, 2, Q("1 mm")),
    Sketcher.Constraint("DistanceX", 1, 1, 1, 2, Q("16.4 mm")),
    Sketcher.Constraint("DistanceX", 0, 2, -1, 1, Q("8.2 mm")),
    Sketcher.Constraint("DistanceY", -1, 1, 0, 2, Q("41.05 mm")),
])
pad8 = body.newObject("PartDesign::Pad", "Pad007")
pad8.Profile = sketch10
pad8.Length = 2
pad8.Reversed = True

sketch11 = body.newObject("Sketcher::SketchObject", "Sketch010")
sketch11.AttachmentSupport = (doc.getObject("XZ_Plane"), [""])
sketch11.MapMode = "FlatFace"
sketch11.AttachmentOffset = App.Placement(App.Vector(0, 0, -2), App.Rotation())
add_polygon(sketch11, [(-8.2, 42.85), (-8.2, 38.05), (-9.2, 38.05), (-9.2, 42.85)])
add_polygon(sketch11, [(8.2, 42.85), (9.2, 42.85), (9.2, 38.05), (8.2, 38.05)])
sketch11.addConstraint([
    Sketcher.Constraint("Vertical", 0),
    Sketcher.Constraint("Horizontal", 1),
    Sketcher.Constraint("Vertical", 2),
    Sketcher.Constraint("Horizontal", 3),
    Sketcher.Constraint("Horizontal", 4),
    Sketcher.Constraint("Vertical", 5),
    Sketcher.Constraint("Horizontal", 6),
    Sketcher.Constraint("Vertical", 7),
    Sketcher.Constraint("Symmetric", 2, 2, 4, 2, -2),
    Sketcher.Constraint("Symmetric", 0, 2, 6, 2, -2),
    Sketcher.Constraint("DistanceX", 1, 2, 1, 1, Q("1 mm")),
    Sketcher.Constraint("DistanceY", 0, 2, 0, 1, Q("4.8 mm")),
    Sketcher.Constraint("DistanceX", 0, 2, -1, 1, Q("8.2 mm")),
    Sketcher.Constraint("DistanceY", -1, 1, 0, 2, Q("38.05 mm")),
])
pad9 = body.newObject("PartDesign::Pad", "Pad008")
pad9.Profile = sketch11
pad9.Length = 3
pad9.Reversed = True

doc.recompute()
